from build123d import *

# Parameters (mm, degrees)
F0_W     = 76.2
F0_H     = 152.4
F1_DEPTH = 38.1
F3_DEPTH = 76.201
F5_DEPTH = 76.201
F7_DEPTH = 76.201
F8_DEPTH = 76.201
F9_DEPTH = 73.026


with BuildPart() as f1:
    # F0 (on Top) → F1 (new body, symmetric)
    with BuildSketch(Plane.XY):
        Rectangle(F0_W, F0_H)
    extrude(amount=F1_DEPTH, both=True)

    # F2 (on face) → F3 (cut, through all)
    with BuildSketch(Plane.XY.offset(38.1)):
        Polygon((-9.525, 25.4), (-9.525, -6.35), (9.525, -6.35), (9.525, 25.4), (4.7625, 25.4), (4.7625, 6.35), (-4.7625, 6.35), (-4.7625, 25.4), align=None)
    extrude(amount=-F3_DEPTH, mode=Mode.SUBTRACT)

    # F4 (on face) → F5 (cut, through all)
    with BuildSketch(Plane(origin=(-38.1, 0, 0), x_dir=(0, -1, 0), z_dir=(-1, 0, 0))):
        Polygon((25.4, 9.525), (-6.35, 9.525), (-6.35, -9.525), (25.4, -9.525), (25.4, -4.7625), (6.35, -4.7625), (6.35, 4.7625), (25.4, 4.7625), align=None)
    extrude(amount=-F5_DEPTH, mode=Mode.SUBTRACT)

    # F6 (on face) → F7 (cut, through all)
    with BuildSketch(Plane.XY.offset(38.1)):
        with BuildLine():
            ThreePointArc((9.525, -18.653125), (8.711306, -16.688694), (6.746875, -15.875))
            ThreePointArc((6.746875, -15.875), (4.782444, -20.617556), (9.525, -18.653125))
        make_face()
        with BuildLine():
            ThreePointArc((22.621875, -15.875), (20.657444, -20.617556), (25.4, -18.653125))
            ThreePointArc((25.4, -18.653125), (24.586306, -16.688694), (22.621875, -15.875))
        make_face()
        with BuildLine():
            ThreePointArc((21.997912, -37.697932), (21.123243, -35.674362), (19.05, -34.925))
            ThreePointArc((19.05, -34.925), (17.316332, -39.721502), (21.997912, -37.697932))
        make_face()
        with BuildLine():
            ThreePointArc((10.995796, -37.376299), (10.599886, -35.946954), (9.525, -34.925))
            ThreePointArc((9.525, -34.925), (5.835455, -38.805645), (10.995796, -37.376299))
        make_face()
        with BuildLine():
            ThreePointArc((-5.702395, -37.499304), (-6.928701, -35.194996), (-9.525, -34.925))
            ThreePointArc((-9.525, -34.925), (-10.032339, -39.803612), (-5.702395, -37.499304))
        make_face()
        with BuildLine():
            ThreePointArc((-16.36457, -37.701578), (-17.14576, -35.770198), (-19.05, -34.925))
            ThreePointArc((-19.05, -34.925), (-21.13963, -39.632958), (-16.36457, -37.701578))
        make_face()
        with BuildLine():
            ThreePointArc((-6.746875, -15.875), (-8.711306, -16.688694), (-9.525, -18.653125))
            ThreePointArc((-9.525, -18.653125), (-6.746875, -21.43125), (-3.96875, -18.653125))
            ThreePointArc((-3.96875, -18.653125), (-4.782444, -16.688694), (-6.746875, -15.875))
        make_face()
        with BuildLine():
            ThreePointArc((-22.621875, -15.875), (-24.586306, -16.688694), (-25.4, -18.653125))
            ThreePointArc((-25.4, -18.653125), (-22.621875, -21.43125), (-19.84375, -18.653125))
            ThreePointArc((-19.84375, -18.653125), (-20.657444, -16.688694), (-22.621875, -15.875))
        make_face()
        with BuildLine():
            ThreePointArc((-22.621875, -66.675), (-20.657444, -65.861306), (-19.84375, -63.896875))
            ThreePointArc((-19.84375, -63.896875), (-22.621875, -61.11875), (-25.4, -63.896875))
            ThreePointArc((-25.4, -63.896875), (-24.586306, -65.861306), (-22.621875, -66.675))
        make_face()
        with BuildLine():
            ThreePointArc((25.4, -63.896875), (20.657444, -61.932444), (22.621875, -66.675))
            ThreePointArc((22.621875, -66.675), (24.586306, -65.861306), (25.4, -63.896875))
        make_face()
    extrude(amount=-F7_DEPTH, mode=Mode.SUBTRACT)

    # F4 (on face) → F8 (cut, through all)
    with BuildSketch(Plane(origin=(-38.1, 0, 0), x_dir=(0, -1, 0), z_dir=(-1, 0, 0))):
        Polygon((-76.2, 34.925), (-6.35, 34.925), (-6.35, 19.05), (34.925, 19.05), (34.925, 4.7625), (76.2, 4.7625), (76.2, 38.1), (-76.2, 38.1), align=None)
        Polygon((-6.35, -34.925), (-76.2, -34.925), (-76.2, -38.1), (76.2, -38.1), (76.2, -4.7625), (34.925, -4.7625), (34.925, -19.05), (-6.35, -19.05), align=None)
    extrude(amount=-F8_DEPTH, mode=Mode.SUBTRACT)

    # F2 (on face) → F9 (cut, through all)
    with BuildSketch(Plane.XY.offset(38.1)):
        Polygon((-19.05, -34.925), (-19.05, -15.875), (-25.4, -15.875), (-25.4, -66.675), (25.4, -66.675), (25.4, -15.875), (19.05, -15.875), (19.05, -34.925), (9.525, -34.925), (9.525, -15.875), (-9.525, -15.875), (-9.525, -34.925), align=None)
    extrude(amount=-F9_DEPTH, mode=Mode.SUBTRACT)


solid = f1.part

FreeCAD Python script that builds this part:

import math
import FreeCAD as App
import Part
import Sketcher
from FreeCAD import Vector
Q = App.Units.Quantity

doc = App.newDocument("Part")
params = doc.addObject("Spreadsheet::Sheet", "Params")
for row, (alias, value) in enumerate([
    ("sketch1_width", "3 in"),
    ("sketch1_height", "6 in"),
    ("pad1_length", "3 in"),
    ("sketch2_width", "0.75 in"),
    ("sketch2_height", "1.25 in"),
    ("sketch2_width2", "0.1875 in"),
    ("sketch3_width", "1.25 in"),
    ("sketch3_width2", "0.75 in"),
    ("sketch3_height", "0.1875 in"),
    ("sketch4_radius", "0.109375 in"),
    ("sketch5_width", "6 in"),
    ("sketch5_width2", "2.75 in"),
    ("sketch5_height", "0.625 in"),
    ("sketch5_height2", "0.5625 in"),
    ("sketch6_width", "2 in"),
    ("sketch6_width2", "0.25 in"),
    ("sketch6_width3", "0.75 in"),
], start=1):
    params.set(f"A{row}", alias)
    params.set(f"B{row}", "=" + value)
    params.setAlias(f"B{row}", alias)

body = doc.addObject("PartDesign::Body", "Body")

sketch1 = doc.addObject("Sketcher::SketchObject", "Sketch")
body.addObject(sketch1)
sketch1.AttachmentSupport = (doc.XY_Plane, [""])
sketch1.MapMode = "FlatFace"
sketch1.addGeometry([
    Part.LineSegment(Vector(-38, 76, 0), Vector(-38, -76, 0)),
    Part.LineSegment(Vector(-38, -76, 0), Vector(38, -76, 0)),
    Part.LineSegment(Vector(38, -76, 0), Vector(38, 76, 0)),
    Part.LineSegment(Vector(38, 76, 0), Vector(-38, 76, 0)),
], False)
sketch1.addConstraint([
    Sketcher.Constraint("Coincident", 0, 2, 1, 1),
    Sketcher.Constraint("Coincident", 1, 2, 2, 1),
    Sketcher.Constraint("Coincident", 2, 2, 3, 1),
    Sketcher.Constraint("Coincident", 3, 2, 0, 1),
    Sketcher.Constraint("Vertical", 0),
    Sketcher.Constraint("Horizontal", 1),
    Sketcher.Constraint("Vertical", 2),
    Sketcher.Constraint("Horizontal", 3),
    Sketcher.Constraint("Symmetric", 0, 2, 2, 2, -1, 1),
    Sketcher.Constraint("DistanceX", 1, 1, 1, 2, Q("3 in")),
    Sketcher.Constraint("DistanceY", 0, 2, 0, 1, Q("6 in")),
])
sketch1.setExpression("Constraints[9]", "Params.sketch1_width")
sketch1.setExpression("Constraints[10]", "Params.sketch1_height")
pad1 = doc.addObject("PartDesign::Pad", "Pad")
body.addObject(pad1)
pad1.Profile = sketch1
pad1.setExpression("Length", "Params.pad1_length")
pad1.Midplane = True

sketch2 = doc.addObject("Sketcher::SketchObject", "Sketch001")
body.addObject(sketch2)
sketch2.AttachmentSupport = (doc.XY_Plane, [""])
sketch2.MapMode = "FlatFace"
sketch2.AttachmentOffset = App.Placement(Vector(0, 0, 1.5 * 25.4), App.Rotation())
sketch2.addGeometry([
    Part.LineSegment(Vector(-9.5, 25.4, 0), Vector(-9.5, -6.3, 0)),
    Part.LineSegment(Vector(-9.5, -6.3, 0), Vector(9.5, -6.3, 0)),
    Part.LineSegment(Vector(9.5, -6.3, 0), Vector(9.5, 25.4, 0)),
    Part.LineSegment(Vector(9.5, 25.4, 0), Vector(4.8, 25.4, 0)),
    Part.LineSegment(Vector(4.8, 25.4, 0), Vector(4.8, 6.3, 0)),
    Part.LineSegment(Vector(4.8, 6.3, 0), Vector(-4.8, 6.3, 0)),
    Part.LineSegment(Vector(-4.8, 6.3, 0), Vector(-4.8, 25.4, 0)),
    Part.LineSegment(Vector(-4.8, 25.4, 0), Vector(-9.5, 25.4, 0)),
], False)
sketch2.addConstraint([
    Sketcher.Constraint("Coincident", 0, 2, 1, 1),
    Sketcher.Constraint("Coincident", 1, 2, 2, 1),
    Sketcher.Constraint("Coincident", 2, 2, 3, 1),
    Sketcher.Constraint("Coincident", 3, 2, 4, 1),
    Sketcher.Constraint("Coincident", 4, 2, 5, 1),
    Sketcher.Constraint("Coincident", 5, 2, 6, 1),
    Sketcher.Constraint("Coincident", 6, 2, 7, 1),
    Sketcher.Constraint("Coincident", 7, 2, 0, 1),
    Sketcher.Constraint("Vertical", 0),
    Sketcher.Constraint("Horizontal", 1),
    Sketcher.Constraint("Vertical", 2),
    Sketcher.Constraint("Horizontal", 3),
    Sketcher.Constraint("Vertical", 4),
    Sketcher.Constraint("Horizontal", 5),
    Sketcher.Constraint("Vertical", 6),
    Sketcher.Constraint("Horizontal", 7),
    Sketcher.Constraint("Symmetric", 3, 2, 6, 2, -2),
    Sketcher.Constraint("Equal", 3, 7),
    Sketcher.Constraint("Equal", 1, 4),
    Sketcher.Constraint("DistanceY", -1, 1, 2, 2, Q("1 in")),
    Sketcher.Constraint("DistanceX", 1, 1, 1, 2, Q("0.75 in")),
    Sketcher.Constraint("DistanceY", 0, 2, 0, 1, Q("1.25 in")),
    Sketcher.Constraint("DistanceX", 3, 2, 3, 1, Q("0.1875 in")),
])
sketch2.setExpression("Constraints[20]", "Params.sketch2_width")
sketch2.setExpression("Constraints[21]", "Params.sketch2_height")
sketch2.setExpression("Constraints[22]", "Params.sketch2_width2")
pocket1 = doc.addObject("PartDesign::Pocket", "Pocket")
body.addObject(pocket1)
pocket1.Profile = sketch2
pocket1.Type = "ThroughAll"

sketch3 = doc.addObject("Sketcher::SketchObject", "Sketch002")
body.addObject(sketch3)
sketch3.AttachmentSupport = (doc.YZ_Plane, [""])
sketch3.MapMode = "FlatFace"
sketch3.AttachmentOffset = App.Placement(Vector(0, 0, -1.5 * 25.4), App.Rotation())
sketch3.addGeometry([
    Part.LineSegment(Vector(-25.4, 9.5, 0), Vector(6.3, 9.5, 0)),
    Part.LineSegment(Vector(6.3, 9.5, 0), Vector(6.3, -9.5, 0)),
    Part.LineSegment(Vector(6.3, -9.5, 0), Vector(-25.4, -9.5, 0)),
    Part.LineSegment(Vector(-25.4, -9.5, 0), Vector(-25.4, -4.8, 0)),
    Part.LineSegment(Vector(-25.4, -4.8, 0), Vector(-6.3, -4.8, 0)),
    Part.LineSegment(Vector(-6.3, -4.8, 0), Vector(-6.3, 4.8, 0)),
    Part.LineSegment(Vector(-6.3, 4.8, 0), Vector(-25.4, 4.8, 0)),
    Part.LineSegment(Vector(-25.4, 4.8, 0), Vector(-25.4, 9.5, 0)),
], False)
sketch3.addConstraint([
    Sketcher.Constraint("Coincident", 0, 2, 1, 1),
    Sketcher.Constraint("Coincident", 1, 2, 2, 1),
    Sketcher.Constraint("Coincident", 2, 2, 3, 1),
    Sketcher.Constraint("Coincident", 3, 2, 4, 1),
    Sketcher.Constraint("Coincident", 4, 2, 5, 1),
    Sketcher.Constraint("Coincident", 5, 2, 6, 1),
    Sketcher.Constraint("Coincident", 6, 2, 7, 1),
    Sketcher.Constraint("Coincident", 7, 2, 0, 1),
    Sketcher.Constraint("Horizontal", 0),
    Sketcher.Constraint("Vertical", 1),
    Sketcher.Constraint("Horizontal", 2),
    Sketcher.Constraint("Vertical", 3),
    Sketcher.Constraint("Horizontal", 4),
    Sketcher.Constraint("Vertical", 5),
    Sketcher.Constraint("Horizontal", 6),
    Sketcher.Constraint("Vertical", 7),
    Sketcher.Constraint("Symmetric", 3, 2, 6, 2, -1),
    Sketcher.Constraint("Equal", 6, 1),
    Sketcher.Constraint("Equal", 3, 7),
    Sketcher.Constraint("DistanceX", 2, 2, -1, 1, Q("1 in")),
    Sketcher.Constraint("DistanceX", 0, 1, 0, 2, Q("1.25 in")),
    Sketcher.Constraint("DistanceX", 4, 1, 4, 2, Q("0.75 in")),
    Sketcher.Constraint("DistanceY", 3, 1, 3, 2, Q("0.1875 in")),
])
sketch3.setExpression("Constraints[20]", "Params.sketch3_width")
sketch3.setExpression("Constraints[21]", "Params.sketch3_width2")
sketch3.setExpression("Constraints[22]", "Params.sketch3_height")
pocket2 = doc.addObject("PartDesign::Pocket", "Pocket001")
body.addObject(pocket2)
pocket2.Profile = sketch3
pocket2.Type = "ThroughAll"
pocket2.Reversed = True

sketch4 = doc.addObject("Sketcher::SketchObject", "Sketch003")
body.addObject(sketch4)
sketch4.AttachmentSupport = (doc.XY_Plane, [""])
sketch4.MapMode = "FlatFace"
sketch4.AttachmentOffset = App.Placement(Vector(0, 0, 1.5 * 25.4), App.Rotation())
sketch4.addGeometry([
    Part.ArcOfCircle(Part.Circle(Vector(6.7, -18.7, 0), Vector(0, 0, 1), 2.8), math.radians(0), math.radians(90)),
    Part.ArcOfCircle(Part.Circle(Vector(6.7, -18.7, 0), Vector(0, 0, 1), 2.8), math.radians(90), math.radians(360)),
    Part.ArcOfCircle(Part.Circle(Vector(22.6, -18.7, 0), Vector(0, 0, 1), 2.8), math.radians(90), math.radians(360)),
    Part.ArcOfCircle(Part.Circle(Vector(22.6, -18.7, 0), Vector(0, 0, 1), 2.8), math.radians(0), math.radians(90)),
    Part.ArcOfCircle(Part.Circle(Vector(19.2, -37.7, 0), Vector(0, 0, 1), 2.8), math.radians(0), math.radians(94)),
    Part.ArcOfCircle(Part.Circle(Vector(19.2, -37.7, 0), Vector(0, 0, 1), 2.8), math.radians(94), math.radians(360)),
    Part.ArcOfCircle(Part.Circle(Vector(8.2, -37.4, 0), Vector(0, 0, 1), 2.8), math.radians(0), math.radians(62)),
    Part.ArcOfCircle(Part.Circle(Vector(8.2, -37.4, 0), Vector(0, 0, 1), 2.8), math.radians(62), math.radians(360)),
    Part.ArcOfCircle(Part.Circle(Vector(-8.5, -37.5, 0), Vector(0, 0, 1), 2.8), math.radians(0), math.radians(112)),
    Part.ArcOfCircle(Part.Circle(Vector(-8.5, -37.5, 0), Vector(0, 0, 1), 2.8), math.radians(112), math.radians(360)),
    Part.ArcOfCircle(Part.Circle(Vector(-19.1, -37.7, 0), Vector(0, 0, 1), 2.8), math.radians(0), math.radians(88)),
    Part.ArcOfCircle(Part.Circle(Vector(-19.1, -37.7, 0), Vector(0, 0, 1), 2.8), math.radians(88), math.radians(360)),
    Part.ArcOfCircle(Part.Circle(Vector(-6.7, -18.7, 0), Vector(0, 0, 1), 2.8), math.radians(90), math.radians(180)),
    Part.ArcOfCircle(Part.Circle(Vector(-6.7, -18.7, 0), Vector(0, 0, 1), 2.8), math.radians(180), math.radians(360)),
    Part.ArcOfCircle(Part.Circle(Vector(-6.7, -18.7, 0), Vector(0, 0, 1), 2.8), math.radians(0), math.radians(90)),
    Part.ArcOfCircle(Part.Circle(Vector(-22.6, -18.7, 0), Vector(0, 0, 1), 2.8), math.radians(90), math.radians(180)),
    Part.ArcOfCircle(Part.Circle(Vector(-22.6, -18.7, 0), Vector(0, 0, 1), 2.8), math.radians(180), math.radians(360)),
    Part.ArcOfCircle(Part.Circle(Vector(-22.6, -18.7, 0), Vector(0, 0, 1), 2.8), math.radians(0), math.radians(90)),
    Part.ArcOfCircle(Part.Circle(Vector(-22.6, -63.9, 0), Vector(0, 0, 1), 2.8), math.radians(-90), math.radians(0)),
    Part.ArcOfCircle(Part.Circle(Vector(-22.6, -63.9, 0), Vector(0, 0, 1), 2.8), math.radians(0), math.radians(180)),
    Part.ArcOfCircle(Part.Circle(Vector(-22.6, -63.9, 0), Vector(0, 0, 1), 2.8), math.radians(-180), math.radians(-90)),
    Part.ArcOfCircle(Part.Circle(Vector(22.6, -63.9, 0), Vector(0, 0, 1), 2.8), math.radians(0), math.radians(270)),
    Part.ArcOfCircle(Part.Circle(Vector(22.6, -63.9, 0), Vector(0, 0, 1), 2.8), math.radians(-90), math.radians(0)),
], False)
sketch4.addConstraint([
    Sketcher.Constraint("Tangent", 0, 1, 1, 2),
    Sketcher.Constraint("Coincident", 1, 1, 0, 2),
    Sketcher.Constraint("Tangent", 2, 1, 3, 2),
    Sketcher.Constraint("Coincident", 3, 1, 2, 2),
    Sketcher.Constraint("Tangent", 4, 1, 5, 2),
    Sketcher.Constraint("Coincident", 5, 1, 4, 2),
    Sketcher.Constraint("Tangent", 6, 1, 7, 2),
    Sketcher.Constraint("Coincident", 7, 1, 6, 2),
    Sketcher.Constraint("Tangent", 8, 1, 9, 2),
    Sketcher.Constraint("Coincident", 9, 1, 8, 2),
    Sketcher.Constraint("Tangent", 10, 1, 11, 2),
    Sketcher.Constraint("Coincident", 11, 1, 10, 2),
    Sketcher.Constraint("Tangent", 12, 2, 13, 1),
    Sketcher.Constraint("Tangent", 13, 2, 14, 1),
    Sketcher.Constraint("Tangent", 14, 2, 12, 1),
    Sketcher.Constraint("Tangent", 15, 2, 16, 1),
    Sketcher.Constraint("Tangent", 16, 2, 17, 1),
    Sketcher.Constraint("Tangent", 17, 2, 15, 1),
    Sketcher.Constraint("Tangent", 18, 2, 19, 1),
    Sketcher.Constraint("Tangent", 19, 2, 20, 1),
    Sketcher.Constraint("Tangent", 20, 2, 18, 1),
    Sketcher.Constraint("Tangent", 21, 1, 22, 2),
    Sketcher.Constraint("Coincident", 22, 1, 21, 2),
    Sketcher.Constraint("Equal", 1, 2),
    Sketcher.Constraint("Equal", 3, 4),
    Sketcher.Constraint("Equal", 5, 6),
    Sketcher.Constraint("Equal", 7, 8),
    Sketcher.Constraint("Equal", 9, 10),
    Sketcher.Constraint("Equal", 11, 12),
    Sketcher.Constraint("Equal", 14, 15),
    Sketcher.Constraint("Equal", 17, 18),
    Sketcher.Constraint("Equal", 20, 21),
    Sketcher.Constraint("Symmetric", 0, 3, 12, 3, -2),
    Sketcher.Constraint("Symmetric", 2, 3, 15, 3, -2),
    Sketcher.Constraint("Symmetric", 18, 3, 21, 3, -2),
    Sketcher.Constraint("Symmetric", 7, 1, 9, 1, -2),
    Sketcher.Constraint("Symmetric", 5, 1, 11, 1, -2),
    Sketcher.Constraint("Horizontal", 1, 3, 2, 3),
    Sketcher.Constraint("Horizontal", 17, 3, 0, 1),
    Sketcher.Constraint("Horizontal", 0, 1, 3, 1),
    Sketcher.Constraint("Horizontal", 5, 3, 4, 1),
    Sketcher.Constraint("Horizontal", 7, 3, 6, 1),
    Sketcher.Constraint("Horizontal", 5, 1, 7, 1),
    Sketcher.Constraint("Horizontal", 9, 3, 8, 1),
    Sketcher.Constraint("Horizontal", 11, 3, 10, 1),
    Sketcher.Constraint("Horizontal", 3, 1, 12, 2),
    Sketcher.Constraint("Horizontal", 12, 2, 13, 2),
    Sketcher.Constraint("Horizontal", 13, 2, 15, 2),
    Sketcher.Constraint("Horizontal", 15, 2, 16, 2),
    Sketcher.Constraint("Horizontal", 22, 3, 18, 2),
    Sketcher.Constraint("Horizontal", 18, 2, 19, 2),
    Sketcher.Constraint("Horizontal", 19, 2, 21, 1),
    Sketcher.Constraint("Vertical", 17, 3, 18, 3),
    Sketcher.Constraint("Vertical", 0, 3, 1, 1),
    Sketcher.Constraint("Vertical", 22, 3, 2, 1),
    Sketcher.Constraint("Vertical", 0, 1, 7, 1),
    Sketcher.Constraint("Vertical", 13, 3, 14, 2),
    Sketcher.Constraint("Vertical", 20, 3, 17, 2),
    Sketcher.Constraint("Vertical", 17, 2, 20, 2),
    Sketcher.Constraint("Vertical", 2, 1, 22, 1),
    Sketcher.Constraint("DistanceX", -1, 1, 3, 1, Q("1 in")),
    Sketcher.Constraint("Radius", 0, Q("0.109375 in")),
    Sketcher.Constraint("DistanceX", -1, 1, 5, 1, Q("0.75 in")),
    Sketcher.Constraint("DistanceX", -1, 1, 0, 3, Q("0.265625 in")),
    Sketcher.Constraint("DistanceY", 0, 3, -1, 1, Q("0.734375 in")),
    Sketcher.Constraint("DistanceY", 18, 3, -1, 1, Q("2.515625 in")),
    Sketcher.Constraint("DistanceY", 5, 1, -1, 1, Q("1.375 in")),
    Sketcher.Constraint("DistanceY", 6, 3, -1, 1, 37.376301),
    Sketcher.Constraint("DistanceX", 11, 3, 8, 1, 13.4403),
    Sketcher.Constraint("DistanceY", 4, 3, -1, 1, 37.697931),
    Sketcher.Constraint("DistanceX", 8, 3, -1, 1, 8.48052),
])
sketch4.setExpression("Constraints[61]", "Params.sketch4_radius")
pocket3 = doc.addObject("PartDesign::Pocket", "Pocket002")
body.addObject(pocket3)
pocket3.Profile = sketch4
pocket3.Type = "ThroughAll"

sketch5 = doc.addObject("Sketcher::SketchObject", "Sketch004")
body.addObject(sketch5)
sketch5.AttachmentSupport = (doc.YZ_Plane, [""])
sketch5.MapMode = "FlatFace"
sketch5.AttachmentOffset = App.Placement(Vector(0, 0, -1.5 * 25.4), App.Rotation())
sketch5.addGeometry([
    Part.LineSegment(Vector(76.2, 34.9, 0), Vector(6.3, 34.9, 0)),
    Part.LineSegment(Vector(6.3, 34.9, 0), Vector(6.3, 19.1, 0)),
    Part.LineSegment(Vector(6.3, 19.1, 0), Vector(-34.9, 19.1, 0)),
    Part.LineSegment(Vector(-34.9, 19.1, 0), Vector(-34.9, 4.8, 0)),
    Part.LineSegment(Vector(-34.9, 4.8, 0), Vector(-76.2, 4.8, 0)),
    Part.LineSegment(Vector(-76.2, 4.8, 0), Vector(-76.2, 38.1, 0)),
    Part.LineSegment(Vector(-76.2, 38.1, 0), Vector(76.2, 38.1, 0)),
    Part.LineSegment(Vector(76.2, 38.1, 0), Vector(76.2, 34.9, 0)),
    Part.LineSegment(Vector(6.3, -34.9, 0), Vector(76.2, -34.9, 0)),
    Part.LineSegment(Vector(76.2, -34.9, 0), Vector(76.2, -38.1, 0)),
    Part.LineSegment(Vector(76.2, -38.1, 0), Vector(-76.2, -38.1, 0)),
    Part.LineSegment(Vector(-76.2, -38.1, 0), Vector(-76.2, -4.8, 0)),
    Part.LineSegment(Vector(-76.2, -4.8, 0), Vector(-34.9, -4.8, 0)),
    Part.LineSegment(Vector(-34.9, -4.8, 0), Vector(-34.9, -19.1, 0)),
    Part.LineSegment(Vector(-34.9, -19.1, 0), Vector(6.3, -19.1, 0)),
    Part.LineSegment(Vector(6.3, -19.1, 0), Vector(6.3, -34.9, 0)),
], False)
sketch5.addConstraint([
    Sketcher.Constraint("Coincident", 0, 2, 1, 1),
    Sketcher.Constraint("Coincident", 1, 2, 2, 1),
    Sketcher.Constraint("Coincident", 2, 2, 3, 1),
    Sketcher.Constraint("Coincident", 3, 2, 4, 1),
    Sketcher.Constraint("Coincident", 4, 2, 5, 1),
    Sketcher.Constraint("Coincident", 5, 2, 6, 1),
    Sketcher.Constraint("Coincident", 6, 2, 7, 1),
    Sketcher.Constraint("Coincident", 7, 2, 0, 1),
    Sketcher.Constraint("Coincident", 8, 2, 9, 1),
    Sketcher.Constraint("Coincident", 9, 2, 10, 1),
    Sketcher.Constraint("Coincident", 10, 2, 11, 1),
    Sketcher.Constraint("Coincident", 11, 2, 12, 1),
    Sketcher.Constraint("Coincident", 12, 2, 13, 1),
    Sketcher.Constraint("Coincident", 13, 2, 14, 1),
    Sketcher.Constraint("Coincident", 14, 2, 15, 1),
    Sketcher.Constraint("Coincident", 15, 2, 8, 1),
    Sketcher.Constraint("Horizontal", 0),
    Sketcher.Constraint("Vertical", 1),
    Sketcher.Constraint("Horizontal", 2),
    Sketcher.Constraint("Vertical", 3),
    Sketcher.Constraint("Horizontal", 4),
    Sketcher.Constraint("Vertical", 5),
    Sketcher.Constraint("Horizontal", 6),
    Sketcher.Constraint("Vertical", 7),
    Sketcher.Constraint("Horizontal", 8),
    Sketcher.Constraint("Vertical", 9),
    Sketcher.Constraint("Horizontal", 10),
    Sketcher.Constraint("Vertical", 11),
    Sketcher.Constraint("Horizontal", 12),
    Sketcher.Constraint("Vertical", 13),
    Sketcher.Constraint("Horizontal", 14),
    Sketcher.Constraint("Vertical", 15),
    Sketcher.Constraint("Symmetric", 5, 2, 9, 2, -1, 1),
    Sketcher.Constraint("Symmetric", 7, 2, 8, 2, -1),
    Sketcher.Constraint("Symmetric", 4, 2, 11, 2, -1),
    Sketcher.Constraint("Symmetric", 2, 2, 13, 2, -1),
    Sketcher.Constraint("Vertical", 1, 2, 14, 2),
    Sketcher.Constraint("Equal", 2, 4),
    Sketcher.Constraint("DistanceX", 6, 1, 6, 2, Q("6 in")),
    Sketcher.Constraint("DistanceY", 9, 2, 6, 2, Q("3 in")),
    Sketcher.Constraint("DistanceX", 0, 2, 0, 1, Q("2.75 in")),
    Sketcher.Constraint("DistanceY", 13, 2, 2, 2, Q("1.5 in")),
    Sketcher.Constraint("DistanceY", 1, 2, 1, 1, Q("0.625 in")),
    Sketcher.Constraint("DistanceY", 3, 2, 3, 1, Q("0.5625 in")),
])
sketch5.setExpression("Constraints[38]", "Params.sketch5_width")
sketch5.setExpression("Constraints[40]", "Params.sketch5_width2")
sketch5.setExpression("Constraints[42]", "Params.sketch5_height")
sketch5.setExpression("Constraints[43]", "Params.sketch5_height2")
pocket4 = doc.addObject("PartDesign::Pocket", "Pocket003")
body.addObject(pocket4)
pocket4.Profile = sketch5
pocket4.Type = "ThroughAll"
pocket4.Reversed = True

sketch6 = doc.addObject("Sketcher::SketchObject", "Sketch005")
body.addObject(sketch6)
sketch6.AttachmentSupport = (doc.XY_Plane, [""])
sketch6.MapMode = "FlatFace"
sketch6.AttachmentOffset = App.Placement(Vector(0, 0, 1.5 * 25.4), App.Rotation())
sketch6.addGeometry([
    Part.LineSegment(Vector(-19, -35, 0), Vector(-19, -16, 0)),
    Part.LineSegment(Vector(-19, -16, 0), Vector(-25, -16, 0)),
    Part.LineSegment(Vector(-25, -16, 0), Vector(-25, -67, 0)),
    Part.LineSegment(Vector(-25, -67, 0), Vector(25, -67, 0)),
    Part.LineSegment(Vector(25, -67, 0), Vector(25, -16, 0)),
    Part.LineSegment(Vector(25, -16, 0), Vector(19, -16, 0)),
    Part.LineSegment(Vector(19, -16, 0), Vector(19, -35, 0)),
    Part.LineSegment(Vector(19, -35, 0), Vector(10, -35, 0)),
    Part.LineSegment(Vector(10, -35, 0), Vector(10, -16, 0)),
    Part.LineSegment(Vector(10, -16, 0), Vector(-10, -16, 0)),
    Part.LineSegment(Vector(-10, -16, 0), Vector(-10, -35, 0)),
    Part.LineSegment(Vector(-10, -35, 0), Vector(-19, -35, 0)),
], False)
sketch6.addConstraint([
    Sketcher.Constraint("Coincident", 0, 2, 1, 1),
    Sketcher.Constraint("Coincident", 1, 2, 2, 1),
    Sketcher.Constraint("Coincident", 2, 2, 3, 1),
    Sketcher.Constraint("Coincident", 3, 2, 4, 1),
    Sketcher.Constraint("Coincident", 4, 2, 5, 1),
    Sketcher.Constraint("Coincident", 5, 2, 6, 1),
    Sketcher.Constraint("Coincident", 6, 2, 7, 1),
    Sketcher.Constraint("Coincident", 7, 2, 8, 1),
    Sketcher.Constraint("Coincident", 8, 2, 9, 1),
    Sketcher.Constraint("Coincident", 9, 2, 10, 1),
    Sketcher.Constraint("Coincident", 10, 2, 11, 1),
    Sketcher.Constraint("Coincident", 11, 2, 0, 1),
    Sketcher.Constraint("Vertical", 0),
    Sketcher.Constraint("Horizontal", 1),
    Sketcher.Constraint("Vertical", 2),
    Sketcher.Constraint("Horizontal", 3),
    Sketcher.Constraint("Vertical", 4),
    Sketcher.Constraint("Horizontal", 5),
    Sketcher.Constraint("Vertical", 6),
    Sketcher.Constraint("Horizontal", 7),
    Sketcher.Constraint("Vertical", 8),
    Sketcher.Constraint("Horizontal", 9),
    Sketcher.Constraint("Vertical", 10),
    Sketcher.Constraint("Horizontal", 11),
    Sketcher.Constraint("Symmetric", 1, 2, 4, 2, -2),
    Sketcher.Constraint("Symmetric", 7, 2, 10, 2, -2),
    Sketcher.Constraint("Horizontal", 5, 2, 8, 2),
    Sketcher.Constraint("Equal", 1, 5),
    Sketcher.Constraint("Equal", 9, 0),
    Sketcher.Constraint("Equal", 3, 2),
    Sketcher.Constraint("DistanceX", 3, 1, 3, 2, Q("2 in")),
    Sketcher.Constraint("DistanceX", 1, 2, 1, 1, Q("0.25 in")),
    Sketcher.Constraint("DistanceX", 9, 2, 9, 1, Q("0.75 in")),
    Sketcher.Constraint("DistanceY", 0, 2, -1, 1, Q("0.625 in")),
])
sketch6.setExpression("Constraints[30]", "Params.sketch6_width")
sketch6.setExpression("Constraints[31]", "Params.sketch6_width2")
sketch6.setExpression("Constraints[32]", "Params.sketch6_width3")
pocket5 = doc.addObject("PartDesign::Pocket", "Pocket004")
body.addObject(pocket5)
pocket5.Profile = sketch6
pocket5.Type = "ThroughAll"

doc.recompute()
